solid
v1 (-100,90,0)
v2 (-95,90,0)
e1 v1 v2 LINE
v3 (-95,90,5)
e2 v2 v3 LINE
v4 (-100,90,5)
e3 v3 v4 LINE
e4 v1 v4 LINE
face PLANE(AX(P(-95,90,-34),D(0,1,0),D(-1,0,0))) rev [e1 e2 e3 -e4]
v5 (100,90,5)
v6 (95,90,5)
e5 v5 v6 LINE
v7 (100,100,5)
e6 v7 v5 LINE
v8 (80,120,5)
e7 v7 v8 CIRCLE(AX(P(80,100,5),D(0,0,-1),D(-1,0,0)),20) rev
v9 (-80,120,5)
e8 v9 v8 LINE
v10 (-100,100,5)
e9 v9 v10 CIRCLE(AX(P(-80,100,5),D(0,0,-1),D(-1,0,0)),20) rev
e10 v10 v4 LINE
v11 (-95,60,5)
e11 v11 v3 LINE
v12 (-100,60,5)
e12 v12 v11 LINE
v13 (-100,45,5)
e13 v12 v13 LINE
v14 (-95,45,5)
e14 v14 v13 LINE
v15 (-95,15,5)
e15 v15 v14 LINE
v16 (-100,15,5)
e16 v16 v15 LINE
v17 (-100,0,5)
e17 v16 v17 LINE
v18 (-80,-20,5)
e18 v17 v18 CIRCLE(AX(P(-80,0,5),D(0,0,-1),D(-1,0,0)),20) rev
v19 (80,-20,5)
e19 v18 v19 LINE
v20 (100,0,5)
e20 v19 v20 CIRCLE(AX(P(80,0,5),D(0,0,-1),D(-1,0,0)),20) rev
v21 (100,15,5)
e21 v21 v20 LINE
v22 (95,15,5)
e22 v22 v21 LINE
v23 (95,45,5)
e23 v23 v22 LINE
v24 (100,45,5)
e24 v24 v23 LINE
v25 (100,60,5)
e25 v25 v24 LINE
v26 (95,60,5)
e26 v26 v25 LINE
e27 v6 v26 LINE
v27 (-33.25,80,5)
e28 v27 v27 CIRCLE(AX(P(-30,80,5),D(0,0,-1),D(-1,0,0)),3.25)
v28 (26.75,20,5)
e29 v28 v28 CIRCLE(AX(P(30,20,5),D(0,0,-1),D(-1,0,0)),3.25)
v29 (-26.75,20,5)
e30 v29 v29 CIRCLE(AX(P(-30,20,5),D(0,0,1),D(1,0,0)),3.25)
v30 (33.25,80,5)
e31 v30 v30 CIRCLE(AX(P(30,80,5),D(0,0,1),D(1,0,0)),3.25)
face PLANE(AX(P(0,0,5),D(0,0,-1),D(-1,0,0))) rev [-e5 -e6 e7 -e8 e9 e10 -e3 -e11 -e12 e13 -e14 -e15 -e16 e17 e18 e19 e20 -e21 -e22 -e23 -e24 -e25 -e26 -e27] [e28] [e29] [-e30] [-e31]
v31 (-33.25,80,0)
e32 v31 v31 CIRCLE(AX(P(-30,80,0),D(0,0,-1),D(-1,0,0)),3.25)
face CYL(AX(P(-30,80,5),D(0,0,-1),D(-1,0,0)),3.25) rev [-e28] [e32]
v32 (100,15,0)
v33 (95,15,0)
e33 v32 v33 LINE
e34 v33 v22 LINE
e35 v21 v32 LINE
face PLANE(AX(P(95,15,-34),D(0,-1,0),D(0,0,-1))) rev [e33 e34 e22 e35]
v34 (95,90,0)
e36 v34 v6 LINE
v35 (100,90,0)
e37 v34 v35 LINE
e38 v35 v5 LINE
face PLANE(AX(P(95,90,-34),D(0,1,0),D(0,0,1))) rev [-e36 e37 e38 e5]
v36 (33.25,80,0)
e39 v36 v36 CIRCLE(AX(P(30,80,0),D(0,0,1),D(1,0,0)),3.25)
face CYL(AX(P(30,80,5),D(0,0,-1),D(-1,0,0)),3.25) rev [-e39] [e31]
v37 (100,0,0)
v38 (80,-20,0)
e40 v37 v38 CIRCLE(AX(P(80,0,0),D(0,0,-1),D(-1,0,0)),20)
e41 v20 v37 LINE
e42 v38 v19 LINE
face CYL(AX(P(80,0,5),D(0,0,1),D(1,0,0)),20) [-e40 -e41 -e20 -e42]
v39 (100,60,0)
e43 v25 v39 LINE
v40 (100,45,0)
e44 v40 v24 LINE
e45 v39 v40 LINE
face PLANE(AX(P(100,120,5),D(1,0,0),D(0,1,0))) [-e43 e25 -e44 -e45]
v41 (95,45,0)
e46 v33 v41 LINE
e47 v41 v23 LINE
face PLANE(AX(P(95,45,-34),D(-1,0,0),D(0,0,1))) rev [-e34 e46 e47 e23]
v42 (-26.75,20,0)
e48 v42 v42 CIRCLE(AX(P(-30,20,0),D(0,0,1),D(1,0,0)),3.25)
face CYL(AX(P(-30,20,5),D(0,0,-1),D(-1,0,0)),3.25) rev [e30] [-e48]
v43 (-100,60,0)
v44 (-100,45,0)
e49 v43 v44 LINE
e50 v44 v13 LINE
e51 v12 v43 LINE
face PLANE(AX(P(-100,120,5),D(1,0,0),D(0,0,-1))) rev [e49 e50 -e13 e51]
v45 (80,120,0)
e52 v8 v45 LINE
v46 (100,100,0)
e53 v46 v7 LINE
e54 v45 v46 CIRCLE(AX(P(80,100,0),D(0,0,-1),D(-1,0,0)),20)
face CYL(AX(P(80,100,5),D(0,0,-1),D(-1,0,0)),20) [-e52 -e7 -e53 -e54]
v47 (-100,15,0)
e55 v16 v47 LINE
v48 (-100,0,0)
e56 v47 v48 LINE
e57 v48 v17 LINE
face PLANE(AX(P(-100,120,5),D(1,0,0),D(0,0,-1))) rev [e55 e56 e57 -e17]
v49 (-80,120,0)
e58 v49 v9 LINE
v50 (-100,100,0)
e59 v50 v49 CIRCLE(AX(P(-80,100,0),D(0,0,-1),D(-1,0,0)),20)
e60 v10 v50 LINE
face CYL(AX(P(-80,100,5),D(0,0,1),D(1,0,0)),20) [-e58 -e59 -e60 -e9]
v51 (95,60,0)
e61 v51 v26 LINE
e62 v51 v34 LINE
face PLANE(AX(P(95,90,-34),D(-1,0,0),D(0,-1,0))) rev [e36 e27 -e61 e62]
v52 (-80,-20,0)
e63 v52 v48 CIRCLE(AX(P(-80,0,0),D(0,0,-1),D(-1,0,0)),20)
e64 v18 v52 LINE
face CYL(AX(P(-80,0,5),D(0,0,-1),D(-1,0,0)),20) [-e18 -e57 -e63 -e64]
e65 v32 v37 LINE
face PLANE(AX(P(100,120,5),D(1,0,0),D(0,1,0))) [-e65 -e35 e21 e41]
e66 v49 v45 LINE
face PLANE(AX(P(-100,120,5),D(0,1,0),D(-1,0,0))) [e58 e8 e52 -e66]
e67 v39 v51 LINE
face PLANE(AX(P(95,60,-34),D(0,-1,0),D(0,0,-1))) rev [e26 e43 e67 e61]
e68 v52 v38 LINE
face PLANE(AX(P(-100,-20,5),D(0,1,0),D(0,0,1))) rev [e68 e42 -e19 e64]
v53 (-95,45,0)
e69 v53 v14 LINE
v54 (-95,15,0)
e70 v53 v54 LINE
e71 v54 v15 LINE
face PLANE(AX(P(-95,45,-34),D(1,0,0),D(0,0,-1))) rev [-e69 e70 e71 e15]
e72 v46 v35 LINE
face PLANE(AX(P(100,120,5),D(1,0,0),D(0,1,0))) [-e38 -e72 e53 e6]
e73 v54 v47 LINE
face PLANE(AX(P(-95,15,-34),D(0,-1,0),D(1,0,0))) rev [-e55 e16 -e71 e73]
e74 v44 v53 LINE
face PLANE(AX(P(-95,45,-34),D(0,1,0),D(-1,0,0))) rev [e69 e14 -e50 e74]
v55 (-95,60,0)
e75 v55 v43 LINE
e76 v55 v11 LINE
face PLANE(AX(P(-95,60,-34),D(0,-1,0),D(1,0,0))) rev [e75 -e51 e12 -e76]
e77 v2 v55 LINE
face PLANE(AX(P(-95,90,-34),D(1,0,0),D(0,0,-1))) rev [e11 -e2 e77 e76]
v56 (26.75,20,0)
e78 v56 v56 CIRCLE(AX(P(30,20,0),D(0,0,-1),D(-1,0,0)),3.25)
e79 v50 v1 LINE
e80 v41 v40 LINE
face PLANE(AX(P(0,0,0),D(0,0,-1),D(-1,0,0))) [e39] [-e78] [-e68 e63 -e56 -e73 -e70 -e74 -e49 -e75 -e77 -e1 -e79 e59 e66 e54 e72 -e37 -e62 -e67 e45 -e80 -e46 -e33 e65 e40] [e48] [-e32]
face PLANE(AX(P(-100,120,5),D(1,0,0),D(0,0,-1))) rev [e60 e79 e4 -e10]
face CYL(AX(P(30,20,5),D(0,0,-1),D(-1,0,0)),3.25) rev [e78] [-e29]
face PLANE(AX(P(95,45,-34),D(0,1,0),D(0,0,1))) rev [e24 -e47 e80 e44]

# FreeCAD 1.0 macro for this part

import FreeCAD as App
import Part
import Sketcher
from FreeCAD import Vector


def edges_at(feature, points):
    """Names of the edges that pass closest to the given points."""
    edges = feature.Shape.Edges
    near = lambda p: min(range(len(edges)), key=lambda i: edges[i].distToShape(Part.Vertex(*p))[0])
    return sorted({f"Edge{near(p) + 1}" for p in points})


def add_polygon(sketch, points):
    """Adds a closed chain of lines whose ends are joined by coincident constraints."""
    first, n = sketch.GeometryCount, len(points)
    for a, b in zip(points, points[1:] + points[:1]):
        sketch.addGeometry(Part.LineSegment(App.Vector(*a, 0), App.Vector(*b, 0)), False)
    for i in range(n):
        sketch.addConstraint(Sketcher.Constraint("Coincident", first + i, 2, first + (i + 1) % n, 1))

doc = App.newDocument("Part")
body = doc.addObject("PartDesign::Body", "Body")

# Sketch on XY plane
sketch1 = doc.addObject("Sketcher::SketchObject", "Sketch")
body.addObject(sketch1)
sketch1.AttachmentSupport = (doc.XY_Plane, [""])
sketch1.MapMode = "FlatFace"
add_polygon(sketch1, [(-100, 120), (-100, -20), (100, -20), (100, 120)])  # lines 0-3
sketch1.addGeometry(Part.Circle(Vector(-30, 20, 0), Vector(0, 0, 1), 3.25), False)  # 4
sketch1.addGeometry(Part.Circle(Vector(30, 20, 0), Vector(0, 0, 1), 3.25), False)  # 5
sketch1.addGeometry(Part.Circle(Vector(-30, 80, 0), Vector(0, 0, 1), 3.25), False)  # 6
sketch1.addGeometry(Part.Circle(Vector(30, 80, 0), Vector(0, 0, 1), 3.25), False)  # 7
sketch1.addConstraint([
    Sketcher.Constraint("Vertical", 0),
    Sketcher.Constraint("Horizontal", 1),
    Sketcher.Constraint("Vertical", 2),
    Sketcher.Constraint("Horizontal", 3),
    Sketcher.Constraint("Equal", 4, 5),
    Sketcher.Constraint("Equal", 5, 6),
    Sketcher.Constraint("Equal", 6, 7),
    Sketcher.Constraint("Symmetric", 4, 3, 5, 3, -2),
    Sketcher.Constraint("Symmetric", 6, 3, 7, 3, -2),
    Sketcher.Constraint("Vertical", 4, 3, 6, 3),
    Sketcher.Constraint("Diameter", 4, 6.5),
    Sketcher.Constraint("DistanceX", 1, 1, 1, 2, 200.0),
    Sketcher.Constraint("DistanceY", 0, 2, 0, 1, 140.0),
    Sketcher.Constraint("DistanceX", 4, 3, -1, 1, 30.0),
    Sketcher.Constraint("DistanceY", -1, 1, 4, 3, 20.0),
    Sketcher.Constraint("DistanceY", -1, 1, 6, 3, 80.0),
    Sketcher.Constraint("DistanceX", 0, 2, -1, 1, 100.0),
    Sketcher.Constraint("DistanceY", 0, 2, -1, 1, 20.0),
])
pad1 = doc.addObject("PartDesign::Pad", "Pad")
body.addObject(pad1)
pad1.Profile = sketch1
pad1.Length = 5
doc.recompute()

fillet = doc.addObject("PartDesign::Fillet", "Fillet")
body.addObject(fillet)
fillet.Base = (pad1, edges_at(pad1, [
    (-100, 120, 2.5),
    (-100, -20, 2.5),
    (100, -20, 2.5),
    (100, 120, 2.5),
]))
fillet.Radius = 20

# Sketch on XY plane
sketch2 = doc.addObject("Sketcher::SketchObject", "Sketch001")
body.addObject(sketch2)
sketch2.AttachmentSupport = (doc.XY_Plane, [""])
sketch2.MapMode = "FlatFace"
sketch2.AttachmentOffset = App.Placement(Vector(0, 0, 5), App.Rotation())
add_polygon(sketch2, [(95, 90), (95, 60), (100, 60), (100, 90)])  # lines 0-3
add_polygon(sketch2, [(95, 45), (95, 15), (100, 15), (100, 45)])  # lines 4-7
add_polygon(sketch2, [(-100, 45), (-100, 15), (-95, 15), (-95, 45)])  # lines 8-11
add_polygon(sketch2, [(-100, 90), (-100, 60), (-95, 60), (-95, 90)])  # lines 12-15
sketch2.addConstraint([
    Sketcher.Constraint("Vertical", 0),
    Sketcher.Constraint("Horizontal", 1),
    Sketcher.Constraint("Vertical", 2),
    Sketcher.Constraint("Horizontal", 3),
    Sketcher.Constraint("Vertical", 4),
    Sketcher.Constraint("Horizontal", 5),
    Sketcher.Constraint("Vertical", 6),
    Sketcher.Constraint("Horizontal", 7),
    Sketcher.Constraint("Vertical", 8),
    Sketcher.Constraint("Horizontal", 9),
    Sketcher.Constraint("Vertical", 10),
    Sketcher.Constraint("Horizontal", 11),
    Sketcher.Constraint("Vertical", 12),
    Sketcher.Constraint("Horizontal", 13),
    Sketcher.Constraint("Vertical", 14),
    Sketcher.Constraint("Horizontal", 15),
    Sketcher.Constraint("Symmetric", 5, 2, 8, 2, -2),
    Sketcher.Constraint("Symmetric", 7, 2, 10, 2, -2),
    Sketcher.Constraint("Symmetric", 1, 2, 12, 2, -2),
    Sketcher.Constraint("Symmetric", 3, 2, 14, 2, -2),
    Sketcher.Constraint("Vertical", 3, 2, 4, 2),
    Sketcher.Constraint("Vertical", 2, 2, 5, 2),
    Sketcher.Constraint("Equal", 2, 4),
    Sketcher.Constraint("DistanceX", 1, 1, 1, 2, 5.0),
    Sketcher.Constraint("DistanceY", 0, 2, 0, 1, 30.0),
    Sketcher.Constraint("DistanceX", -1, 1, 0, 2, 95.0),
    Sketcher.Constraint("DistanceY", -1, 1, 0, 2, 60.0),
    Sketcher.Constraint("DistanceY", -1, 1, 4, 2, 15.0),
])
pocket1 = doc.addObject("PartDesign::Pocket", "Pocket")
body.addObject(pocket1)
pocket1.Profile = sketch2
pocket1.Length = 39

doc.recompute()
